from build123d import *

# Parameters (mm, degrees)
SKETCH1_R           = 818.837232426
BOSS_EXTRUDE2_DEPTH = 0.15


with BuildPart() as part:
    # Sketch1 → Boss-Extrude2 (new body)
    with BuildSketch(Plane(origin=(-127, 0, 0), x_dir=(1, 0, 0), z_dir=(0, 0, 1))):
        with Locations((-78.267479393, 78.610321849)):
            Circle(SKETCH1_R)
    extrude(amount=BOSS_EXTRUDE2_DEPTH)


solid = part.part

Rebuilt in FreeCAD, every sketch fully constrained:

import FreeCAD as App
import Part
import Sketcher
from FreeCAD import Vector
Q = App.Units.Quantity

doc = App.newDocument("Part")
params = doc.addObject("Spreadsheet::Sheet", "Params")
for row, (alias, value) in enumerate([
    ("pad1_length", "0.15 mm"),
], start=1):
    params.set(f"A{row}", alias)
    params.set(f"B{row}", "=" + value)
    params.setAlias(f"B{row}", alias)

body = doc.addObject("PartDesign::Body", "Body")

# Sketch on XY plane
sketch1 = body.newObject("Sketcher::SketchObject", "Sketch")
sketch1.AttachmentSupport = (doc.getObject("XY_Plane"), [""])
sketch1.MapMode = "FlatFace"
sketch1.addGeometry(Part.Circle(Vector(-205, 79, 0), Vector(0, 0, 1), 819), False)
sketch1.addConstraint([
    Sketcher.Constraint("Diameter", 0, Q("1637.674465 mm")),
    Sketcher.Constraint("DistanceX", 0, 3, -1, 1, Q("205.267479 mm")),
    Sketcher.Constraint("DistanceY", -1, 1, 0, 3, Q("78.610322 mm")),
])
pad1 = body.newObject("PartDesign::Pad", "Pad")
pad1.Profile = sketch1
pad1.setExpression("Length", "Params.pad1_length")

doc.recompute()
